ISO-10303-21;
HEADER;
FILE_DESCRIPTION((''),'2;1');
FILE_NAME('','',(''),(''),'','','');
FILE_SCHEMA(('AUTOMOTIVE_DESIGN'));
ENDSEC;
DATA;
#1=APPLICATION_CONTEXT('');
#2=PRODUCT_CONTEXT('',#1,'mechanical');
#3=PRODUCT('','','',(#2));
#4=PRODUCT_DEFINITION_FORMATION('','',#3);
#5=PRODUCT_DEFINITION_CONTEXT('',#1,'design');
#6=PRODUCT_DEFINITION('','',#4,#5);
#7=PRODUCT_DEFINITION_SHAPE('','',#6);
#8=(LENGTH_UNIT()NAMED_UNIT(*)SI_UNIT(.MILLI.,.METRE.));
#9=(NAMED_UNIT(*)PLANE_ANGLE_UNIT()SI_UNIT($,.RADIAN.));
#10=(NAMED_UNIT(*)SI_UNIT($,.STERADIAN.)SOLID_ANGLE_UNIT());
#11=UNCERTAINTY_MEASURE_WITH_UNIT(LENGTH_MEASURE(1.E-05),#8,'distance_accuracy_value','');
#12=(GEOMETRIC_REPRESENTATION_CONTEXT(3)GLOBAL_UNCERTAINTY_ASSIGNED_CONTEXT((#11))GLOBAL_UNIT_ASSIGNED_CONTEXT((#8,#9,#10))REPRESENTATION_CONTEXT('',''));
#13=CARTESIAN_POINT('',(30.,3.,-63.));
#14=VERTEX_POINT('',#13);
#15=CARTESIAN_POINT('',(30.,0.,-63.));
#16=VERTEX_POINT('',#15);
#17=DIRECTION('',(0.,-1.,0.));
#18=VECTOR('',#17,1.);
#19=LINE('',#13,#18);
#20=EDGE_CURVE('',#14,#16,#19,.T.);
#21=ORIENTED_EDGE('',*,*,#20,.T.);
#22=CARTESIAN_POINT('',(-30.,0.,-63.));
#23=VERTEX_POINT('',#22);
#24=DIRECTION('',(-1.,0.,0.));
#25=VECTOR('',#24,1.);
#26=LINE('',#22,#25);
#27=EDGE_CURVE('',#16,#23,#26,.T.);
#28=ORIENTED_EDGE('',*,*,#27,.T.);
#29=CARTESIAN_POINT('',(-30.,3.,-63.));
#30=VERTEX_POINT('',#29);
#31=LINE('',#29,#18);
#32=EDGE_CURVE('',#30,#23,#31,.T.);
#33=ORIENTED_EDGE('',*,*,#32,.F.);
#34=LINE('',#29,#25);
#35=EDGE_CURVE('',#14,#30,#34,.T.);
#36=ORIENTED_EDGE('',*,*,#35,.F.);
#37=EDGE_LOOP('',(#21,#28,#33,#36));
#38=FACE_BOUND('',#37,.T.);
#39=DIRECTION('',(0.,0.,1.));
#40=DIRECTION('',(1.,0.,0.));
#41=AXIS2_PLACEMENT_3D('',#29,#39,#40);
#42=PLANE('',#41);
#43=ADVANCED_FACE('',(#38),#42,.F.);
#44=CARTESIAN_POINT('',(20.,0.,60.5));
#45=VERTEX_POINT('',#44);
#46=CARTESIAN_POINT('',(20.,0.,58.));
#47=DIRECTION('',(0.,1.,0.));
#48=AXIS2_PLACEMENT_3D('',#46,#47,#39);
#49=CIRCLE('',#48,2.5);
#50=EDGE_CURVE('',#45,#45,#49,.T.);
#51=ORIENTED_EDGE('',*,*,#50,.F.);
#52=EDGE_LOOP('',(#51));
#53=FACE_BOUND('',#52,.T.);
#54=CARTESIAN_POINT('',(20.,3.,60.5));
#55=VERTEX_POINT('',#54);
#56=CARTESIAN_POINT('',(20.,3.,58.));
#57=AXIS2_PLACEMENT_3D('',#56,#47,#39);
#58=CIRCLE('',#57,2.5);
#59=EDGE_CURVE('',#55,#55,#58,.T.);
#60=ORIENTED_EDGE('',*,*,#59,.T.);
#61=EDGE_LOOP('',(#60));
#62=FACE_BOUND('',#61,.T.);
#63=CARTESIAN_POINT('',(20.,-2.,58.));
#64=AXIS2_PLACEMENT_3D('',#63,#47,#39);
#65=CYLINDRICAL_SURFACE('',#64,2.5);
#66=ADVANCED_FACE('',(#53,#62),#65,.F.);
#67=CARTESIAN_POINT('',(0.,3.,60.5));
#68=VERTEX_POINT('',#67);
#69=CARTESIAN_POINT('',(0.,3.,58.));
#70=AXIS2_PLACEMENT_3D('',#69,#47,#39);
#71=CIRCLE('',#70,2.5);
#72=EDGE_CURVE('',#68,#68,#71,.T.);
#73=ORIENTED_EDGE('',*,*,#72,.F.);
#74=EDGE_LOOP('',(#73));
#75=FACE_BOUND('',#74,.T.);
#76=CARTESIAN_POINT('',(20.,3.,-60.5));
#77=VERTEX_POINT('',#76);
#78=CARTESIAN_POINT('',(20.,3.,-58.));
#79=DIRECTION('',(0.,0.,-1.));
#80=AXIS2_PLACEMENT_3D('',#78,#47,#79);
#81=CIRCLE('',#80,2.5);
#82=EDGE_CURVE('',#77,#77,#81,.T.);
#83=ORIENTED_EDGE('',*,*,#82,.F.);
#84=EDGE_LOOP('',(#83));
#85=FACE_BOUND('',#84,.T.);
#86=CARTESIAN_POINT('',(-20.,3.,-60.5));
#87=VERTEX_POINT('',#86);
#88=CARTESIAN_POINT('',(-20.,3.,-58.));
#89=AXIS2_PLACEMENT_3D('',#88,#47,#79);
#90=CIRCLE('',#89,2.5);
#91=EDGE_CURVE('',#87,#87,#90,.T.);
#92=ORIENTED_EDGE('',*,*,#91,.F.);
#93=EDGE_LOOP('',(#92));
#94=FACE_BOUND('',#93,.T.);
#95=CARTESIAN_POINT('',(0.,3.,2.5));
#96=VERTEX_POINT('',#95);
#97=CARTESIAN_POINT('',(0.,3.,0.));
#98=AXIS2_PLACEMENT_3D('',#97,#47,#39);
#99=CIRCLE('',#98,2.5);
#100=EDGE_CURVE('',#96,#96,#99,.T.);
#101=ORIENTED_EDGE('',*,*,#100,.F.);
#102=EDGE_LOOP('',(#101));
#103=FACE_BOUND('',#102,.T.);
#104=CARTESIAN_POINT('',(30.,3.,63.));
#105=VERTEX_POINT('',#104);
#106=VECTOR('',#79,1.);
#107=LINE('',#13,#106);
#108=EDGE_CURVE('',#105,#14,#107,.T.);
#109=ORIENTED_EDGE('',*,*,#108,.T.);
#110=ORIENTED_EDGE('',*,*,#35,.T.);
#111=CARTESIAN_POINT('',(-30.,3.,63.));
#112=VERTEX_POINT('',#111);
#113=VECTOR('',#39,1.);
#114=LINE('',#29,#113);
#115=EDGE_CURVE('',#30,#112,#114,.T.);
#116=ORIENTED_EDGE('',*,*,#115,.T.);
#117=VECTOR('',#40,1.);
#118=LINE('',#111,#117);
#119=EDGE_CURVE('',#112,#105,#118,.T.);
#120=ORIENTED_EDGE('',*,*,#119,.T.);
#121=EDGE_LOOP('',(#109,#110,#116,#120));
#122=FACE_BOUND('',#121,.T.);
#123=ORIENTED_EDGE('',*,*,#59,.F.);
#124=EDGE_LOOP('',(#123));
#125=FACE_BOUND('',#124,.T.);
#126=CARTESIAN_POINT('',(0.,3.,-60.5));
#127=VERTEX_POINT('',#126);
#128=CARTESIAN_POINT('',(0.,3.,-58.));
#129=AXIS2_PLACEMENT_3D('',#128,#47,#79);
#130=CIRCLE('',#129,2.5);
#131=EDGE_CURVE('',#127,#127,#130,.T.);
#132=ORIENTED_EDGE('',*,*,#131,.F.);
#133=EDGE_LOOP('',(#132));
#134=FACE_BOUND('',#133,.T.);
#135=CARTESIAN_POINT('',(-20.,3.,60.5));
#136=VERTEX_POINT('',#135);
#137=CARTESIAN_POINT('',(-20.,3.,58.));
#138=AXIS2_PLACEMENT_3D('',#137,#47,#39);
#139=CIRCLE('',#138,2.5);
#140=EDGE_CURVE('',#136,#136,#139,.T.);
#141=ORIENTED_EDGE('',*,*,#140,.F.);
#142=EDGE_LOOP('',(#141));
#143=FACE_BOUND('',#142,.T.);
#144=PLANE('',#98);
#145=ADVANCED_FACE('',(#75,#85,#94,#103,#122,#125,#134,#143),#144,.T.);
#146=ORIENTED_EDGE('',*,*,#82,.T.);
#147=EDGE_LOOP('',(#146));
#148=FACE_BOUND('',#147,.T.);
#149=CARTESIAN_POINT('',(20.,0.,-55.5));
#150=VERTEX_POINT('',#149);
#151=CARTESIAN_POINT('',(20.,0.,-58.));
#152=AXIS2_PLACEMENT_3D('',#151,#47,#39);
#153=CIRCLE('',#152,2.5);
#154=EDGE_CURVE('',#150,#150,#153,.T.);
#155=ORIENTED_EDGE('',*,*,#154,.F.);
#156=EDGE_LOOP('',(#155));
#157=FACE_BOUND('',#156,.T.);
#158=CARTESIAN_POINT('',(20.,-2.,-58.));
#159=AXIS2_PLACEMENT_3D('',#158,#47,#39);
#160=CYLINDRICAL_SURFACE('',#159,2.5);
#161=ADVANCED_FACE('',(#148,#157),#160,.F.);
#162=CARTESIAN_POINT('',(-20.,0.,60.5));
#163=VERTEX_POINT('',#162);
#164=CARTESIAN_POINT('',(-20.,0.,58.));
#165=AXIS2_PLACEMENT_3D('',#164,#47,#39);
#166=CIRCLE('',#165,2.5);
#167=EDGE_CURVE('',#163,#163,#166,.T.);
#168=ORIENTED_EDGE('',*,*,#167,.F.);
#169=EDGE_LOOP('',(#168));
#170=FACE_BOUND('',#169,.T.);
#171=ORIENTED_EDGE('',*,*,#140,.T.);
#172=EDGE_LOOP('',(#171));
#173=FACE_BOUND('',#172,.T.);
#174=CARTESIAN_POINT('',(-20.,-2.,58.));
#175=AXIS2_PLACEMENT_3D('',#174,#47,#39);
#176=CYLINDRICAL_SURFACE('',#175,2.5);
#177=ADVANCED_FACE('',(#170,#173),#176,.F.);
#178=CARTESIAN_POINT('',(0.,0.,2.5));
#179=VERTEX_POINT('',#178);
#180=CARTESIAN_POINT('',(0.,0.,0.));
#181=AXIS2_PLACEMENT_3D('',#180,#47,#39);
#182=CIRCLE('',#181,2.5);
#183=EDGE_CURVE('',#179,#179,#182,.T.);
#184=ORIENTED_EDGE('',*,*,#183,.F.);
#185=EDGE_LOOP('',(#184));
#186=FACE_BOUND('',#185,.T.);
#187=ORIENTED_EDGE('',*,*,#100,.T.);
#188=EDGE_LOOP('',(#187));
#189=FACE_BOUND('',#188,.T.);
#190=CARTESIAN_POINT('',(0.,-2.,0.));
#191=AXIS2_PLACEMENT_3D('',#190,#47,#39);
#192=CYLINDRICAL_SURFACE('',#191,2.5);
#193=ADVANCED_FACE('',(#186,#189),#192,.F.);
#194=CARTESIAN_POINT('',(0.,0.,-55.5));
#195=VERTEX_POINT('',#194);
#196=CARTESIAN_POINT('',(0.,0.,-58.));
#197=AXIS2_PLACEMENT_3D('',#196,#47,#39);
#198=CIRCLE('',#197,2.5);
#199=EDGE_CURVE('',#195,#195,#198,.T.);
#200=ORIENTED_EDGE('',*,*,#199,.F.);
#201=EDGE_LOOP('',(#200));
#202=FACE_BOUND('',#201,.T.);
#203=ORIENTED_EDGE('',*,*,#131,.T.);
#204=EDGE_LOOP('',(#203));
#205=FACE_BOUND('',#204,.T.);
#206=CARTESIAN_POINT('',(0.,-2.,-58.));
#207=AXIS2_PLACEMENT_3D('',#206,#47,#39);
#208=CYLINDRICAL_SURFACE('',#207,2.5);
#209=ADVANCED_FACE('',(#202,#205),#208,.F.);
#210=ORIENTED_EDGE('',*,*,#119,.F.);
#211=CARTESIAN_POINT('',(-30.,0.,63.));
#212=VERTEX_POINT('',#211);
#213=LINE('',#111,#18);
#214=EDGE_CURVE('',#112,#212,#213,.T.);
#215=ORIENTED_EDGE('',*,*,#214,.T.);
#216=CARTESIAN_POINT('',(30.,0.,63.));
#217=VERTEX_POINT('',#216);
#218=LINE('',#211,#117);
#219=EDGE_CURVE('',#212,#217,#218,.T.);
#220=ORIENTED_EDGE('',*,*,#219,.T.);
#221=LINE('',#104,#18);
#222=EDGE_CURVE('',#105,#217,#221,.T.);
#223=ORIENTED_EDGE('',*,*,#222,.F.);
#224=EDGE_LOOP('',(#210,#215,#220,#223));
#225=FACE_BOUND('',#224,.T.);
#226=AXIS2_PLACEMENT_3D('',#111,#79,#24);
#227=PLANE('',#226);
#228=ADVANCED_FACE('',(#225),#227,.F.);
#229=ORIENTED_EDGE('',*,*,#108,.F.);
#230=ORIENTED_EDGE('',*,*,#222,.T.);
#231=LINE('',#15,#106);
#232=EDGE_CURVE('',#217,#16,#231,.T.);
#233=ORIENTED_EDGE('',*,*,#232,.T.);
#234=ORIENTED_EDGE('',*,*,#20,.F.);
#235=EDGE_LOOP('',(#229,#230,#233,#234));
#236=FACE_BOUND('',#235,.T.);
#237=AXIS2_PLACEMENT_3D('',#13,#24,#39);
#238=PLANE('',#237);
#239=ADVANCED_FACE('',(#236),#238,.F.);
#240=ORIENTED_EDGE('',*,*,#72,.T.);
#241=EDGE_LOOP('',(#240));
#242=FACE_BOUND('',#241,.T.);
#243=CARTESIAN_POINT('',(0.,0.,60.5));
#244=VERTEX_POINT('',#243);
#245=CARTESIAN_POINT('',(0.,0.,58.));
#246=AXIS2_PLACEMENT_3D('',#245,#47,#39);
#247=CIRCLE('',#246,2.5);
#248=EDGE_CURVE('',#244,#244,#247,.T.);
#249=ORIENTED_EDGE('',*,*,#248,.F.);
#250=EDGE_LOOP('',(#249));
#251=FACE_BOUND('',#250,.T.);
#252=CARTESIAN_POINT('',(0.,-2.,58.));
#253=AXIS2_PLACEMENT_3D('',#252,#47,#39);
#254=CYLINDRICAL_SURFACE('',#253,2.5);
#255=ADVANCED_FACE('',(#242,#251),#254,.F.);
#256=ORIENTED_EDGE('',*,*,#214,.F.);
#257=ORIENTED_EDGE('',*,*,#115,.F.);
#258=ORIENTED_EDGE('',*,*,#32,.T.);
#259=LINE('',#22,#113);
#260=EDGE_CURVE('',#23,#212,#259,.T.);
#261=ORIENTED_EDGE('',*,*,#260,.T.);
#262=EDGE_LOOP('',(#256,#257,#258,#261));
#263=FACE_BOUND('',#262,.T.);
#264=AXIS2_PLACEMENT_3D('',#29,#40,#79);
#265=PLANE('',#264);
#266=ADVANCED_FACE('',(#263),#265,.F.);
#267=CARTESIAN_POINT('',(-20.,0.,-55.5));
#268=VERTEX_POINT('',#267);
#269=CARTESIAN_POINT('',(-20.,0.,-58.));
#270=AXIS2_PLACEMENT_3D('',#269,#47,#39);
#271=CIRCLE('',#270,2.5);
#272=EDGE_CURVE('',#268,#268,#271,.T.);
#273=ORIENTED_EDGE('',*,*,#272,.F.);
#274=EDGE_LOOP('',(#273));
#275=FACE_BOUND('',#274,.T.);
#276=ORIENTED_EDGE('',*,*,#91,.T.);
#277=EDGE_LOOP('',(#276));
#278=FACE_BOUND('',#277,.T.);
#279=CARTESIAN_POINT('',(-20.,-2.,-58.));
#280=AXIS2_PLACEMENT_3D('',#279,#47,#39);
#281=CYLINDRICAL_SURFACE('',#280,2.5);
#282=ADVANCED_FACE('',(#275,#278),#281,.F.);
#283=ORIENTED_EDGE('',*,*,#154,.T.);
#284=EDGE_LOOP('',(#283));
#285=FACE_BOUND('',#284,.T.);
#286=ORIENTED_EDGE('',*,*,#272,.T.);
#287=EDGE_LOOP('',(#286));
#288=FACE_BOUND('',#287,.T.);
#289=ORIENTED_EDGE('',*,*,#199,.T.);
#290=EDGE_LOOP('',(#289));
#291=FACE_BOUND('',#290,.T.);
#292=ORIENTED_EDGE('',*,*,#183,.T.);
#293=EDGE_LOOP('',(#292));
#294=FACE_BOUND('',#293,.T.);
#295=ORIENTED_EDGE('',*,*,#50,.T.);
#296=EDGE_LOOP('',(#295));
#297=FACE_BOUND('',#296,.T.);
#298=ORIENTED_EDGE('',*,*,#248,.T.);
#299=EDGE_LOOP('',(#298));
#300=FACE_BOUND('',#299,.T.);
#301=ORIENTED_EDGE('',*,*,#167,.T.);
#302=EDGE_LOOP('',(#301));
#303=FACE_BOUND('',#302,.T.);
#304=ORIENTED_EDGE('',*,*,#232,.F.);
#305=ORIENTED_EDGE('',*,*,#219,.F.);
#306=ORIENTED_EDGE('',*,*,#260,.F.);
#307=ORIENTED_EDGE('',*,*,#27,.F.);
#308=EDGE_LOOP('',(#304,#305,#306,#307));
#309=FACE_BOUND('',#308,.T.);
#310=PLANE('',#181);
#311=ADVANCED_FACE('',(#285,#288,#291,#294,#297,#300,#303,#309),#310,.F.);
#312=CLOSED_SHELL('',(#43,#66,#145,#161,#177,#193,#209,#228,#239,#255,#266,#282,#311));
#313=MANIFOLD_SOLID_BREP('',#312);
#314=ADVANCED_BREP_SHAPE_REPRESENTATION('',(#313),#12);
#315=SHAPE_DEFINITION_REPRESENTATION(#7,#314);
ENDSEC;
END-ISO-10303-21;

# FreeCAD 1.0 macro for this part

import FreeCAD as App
import Part
import Sketcher
from FreeCAD import Vector


def add_polygon(sketch, points):
    """Adds a closed chain of lines whose ends are joined by coincident constraints."""
    first, n = sketch.GeometryCount, len(points)
    for a, b in zip(points, points[1:] + points[:1]):
        sketch.addGeometry(Part.LineSegment(App.Vector(*a, 0), App.Vector(*b, 0)), False)
    for i in range(n):
        sketch.addConstraint(Sketcher.Constraint("Coincident", first + i, 2, first + (i + 1) % n, 1))

doc = App.newDocument("Part")
params = doc.addObject("Spreadsheet::Sheet", "Params")
for row, (alias, value) in enumerate([
    ("sketch1_width", "60 mm"),
    ("sketch1_height", "126 mm"),
    ("pad1_length", "3 mm"),
    ("sketch2_diameter", "5 mm"),
    ("pocket1_length", "5 mm"),
], start=1):
    params.set(f"A{row}", alias)
    params.set(f"B{row}", "=" + value)
    params.setAlias(f"B{row}", alias)

body = doc.addObject("PartDesign::Body", "Body")

sketch1 = body.newObject("Sketcher::SketchObject", "Sketch")
sketch1.AttachmentSupport = (doc.getObject("XZ_Plane"), [""])
sketch1.MapMode = "FlatFace"
add_polygon(sketch1, [(-30, -63), (-30, 63), (30, 63), (30, -63)])
sketch1.addConstraint(Sketcher.Constraint("Vertical", 0))
sketch1.addConstraint(Sketcher.Constraint("Horizontal", 1))
sketch1.addConstraint(Sketcher.Constraint("Vertical", 2))
sketch1.addConstraint(Sketcher.Constraint("Horizontal", 3))
sketch1.addConstraint(Sketcher.Constraint("Symmetric", 0, 2, 2, 2, -1, 1))
sketch1.addConstraint(Sketcher.Constraint("DistanceX", 1, 1, 1, 2, 60.0))
sketch1.addConstraint(Sketcher.Constraint("DistanceY", 0, 1, 0, 2, 126.0))
sketch1.setExpression("Constraints[9]", "Params.sketch1_width")
sketch1.setExpression("Constraints[10]", "Params.sketch1_height")
pad1 = body.newObject("PartDesign::Pad", "Pad")
pad1.Profile = sketch1
pad1.setExpression("Length", "Params.pad1_length")
pad1.Reversed = True

sketch2 = body.newObject("Sketcher::SketchObject", "Sketch001")
sketch2.AttachmentSupport = (doc.getObject("XZ_Plane"), [""])
sketch2.MapMode = "FlatFace"
sketch2.AttachmentOffset = App.Placement(Vector(0, 0, -3), App.Rotation())
sketch2.addGeometry(Part.Circle(Vector(0, 58, 0), Vector(0, 0, 1), 2.5), False)
sketch2.addGeometry(Part.Circle(Vector(20, 58, 0), Vector(0, 0, 1), 2.5), False)
sketch2.addGeometry(Part.Circle(Vector(-20, 58, 0), Vector(0, 0, 1), 2.5), False)
sketch2.addGeometry(Part.Circle(Vector(20, -58, 0), Vector(0, 0, 1), 2.5), False)
sketch2.addGeometry(Part.Circle(Vector(0, -58, 0), Vector(0, 0, 1), 2.5), False)
sketch2.addGeometry(Part.Circle(Vector(-20, -58, 0), Vector(0, 0, 1), 2.5), False)
sketch2.addGeometry(Part.Circle(Vector(0, 0, 0), Vector(0, 0, 1), 2.5), False)
sketch2.addConstraint(Sketcher.Constraint("Coincident", 6, 3, -1, 1))
sketch2.addConstraint(Sketcher.Constraint("Equal", 0, 1))
sketch2.addConstraint(Sketcher.Constraint("Equal", 1, 2))
sketch2.addConstraint(Sketcher.Constraint("Equal", 2, 3))
sketch2.addConstraint(Sketcher.Constraint("Equal", 3, 4))
sketch2.addConstraint(Sketcher.Constraint("Equal", 4, 5))
sketch2.addConstraint(Sketcher.Constraint("Equal", 5, 6))
sketch2.addConstraint(Sketcher.Constraint("Symmetric", 2, 3, 3, 3, -1, 1))
sketch2.addConstraint(Sketcher.Constraint("Symmetric", 0, 3, 4, 3, -1, 1))
sketch2.addConstraint(Sketcher.Constraint("Symmetric", 1, 3, 5, 3, -1, 1))
sketch2.addConstraint(Sketcher.Constraint("Symmetric", 1, 3, 2, 3, -2))
sketch2.addConstraint(Sketcher.Constraint("PointOnObject", 0, 3, -2))
sketch2.addConstraint(Sketcher.Constraint("Horizontal", 0, 3, 1, 3))
sketch2.addConstraint(Sketcher.Constraint("Diameter", 0, 5.0))
sketch2.addConstraint(Sketcher.Constraint("DistanceY", -1, 1, 0, 3, 58.0))
sketch2.addConstraint(Sketcher.Constraint("DistanceX", -1, 1, 1, 3, 20.0))
sketch2.setExpression("Constraints[13]", "Params.sketch2_diameter")
pocket1 = body.newObject("PartDesign::Pocket", "Pocket")
pocket1.Profile = sketch2
pocket1.setExpression("Length", "Params.pocket1_length")
pocket1.Reversed = True

doc.recompute()
